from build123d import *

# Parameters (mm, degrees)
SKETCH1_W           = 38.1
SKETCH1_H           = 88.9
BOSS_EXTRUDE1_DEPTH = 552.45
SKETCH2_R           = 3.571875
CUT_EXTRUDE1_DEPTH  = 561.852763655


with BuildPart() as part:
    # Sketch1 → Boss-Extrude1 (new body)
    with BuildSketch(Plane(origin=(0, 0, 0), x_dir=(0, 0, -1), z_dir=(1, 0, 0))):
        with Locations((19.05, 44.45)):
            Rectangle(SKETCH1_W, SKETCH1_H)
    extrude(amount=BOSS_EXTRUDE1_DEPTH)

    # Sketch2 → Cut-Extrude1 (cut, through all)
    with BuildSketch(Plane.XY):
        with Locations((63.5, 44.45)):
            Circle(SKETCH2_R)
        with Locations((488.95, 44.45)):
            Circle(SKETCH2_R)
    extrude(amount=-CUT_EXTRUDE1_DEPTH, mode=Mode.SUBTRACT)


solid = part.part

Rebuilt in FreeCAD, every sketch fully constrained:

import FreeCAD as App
import Part
import Sketcher

V = App.Vector
Q = App.Units.Quantity


def add_polygon(sketch, points):
    """Adds a closed chain of lines whose ends are joined by coincident constraints."""
    first, n = sketch.GeometryCount, len(points)
    for a, b in zip(points, points[1:] + points[:1]):
        sketch.addGeometry(Part.LineSegment(App.Vector(*a, 0), App.Vector(*b, 0)), False)
    for i in range(n):
        sketch.addConstraint(Sketcher.Constraint("Coincident", first + i, 2, first + (i + 1) % n, 1))

doc = App.newDocument("Part")
body = doc.addObject("PartDesign::Body", "Body")

sketch1 = doc.addObject("Sketcher::SketchObject", "Sketch")
body.addObject(sketch1)
sketch1.AttachmentSupport = (doc.YZ_Plane, [""])
sketch1.MapMode = "FlatFace"
add_polygon(sketch1, [(88.9, 0), (0, 0), (0, -38.1), (88.9, -38.1)])
sketch1.addConstraint(Sketcher.Constraint("Horizontal", 0))
sketch1.addConstraint(Sketcher.Constraint("Vertical", 1))
sketch1.addConstraint(Sketcher.Constraint("Horizontal", 2))
sketch1.addConstraint(Sketcher.Constraint("Vertical", 3))
sketch1.addConstraint(Sketcher.Constraint("Coincident", 0, 2, -1, 1))
sketch1.addConstraint(Sketcher.Constraint("DistanceX", 0, 2, 0, 1, Q("3.5 in")))
sketch1.addConstraint(Sketcher.Constraint("DistanceY", 1, 2, 1, 1, Q("1.5 in")))
pad1 = doc.addObject("PartDesign::Pad", "Pad")
body.addObject(pad1)
pad1.Profile = sketch1
pad1.Length = Q("21.75 in")

sketch2 = doc.addObject("Sketcher::SketchObject", "Sketch001")
body.addObject(sketch2)
sketch2.AttachmentSupport = (doc.XY_Plane, [""])
sketch2.MapMode = "FlatFace"
sketch2.addGeometry(Part.Circle(V(63.5, 44.45, 0), V(0, 0, 1), 3.571875), False)
sketch2.addGeometry(Part.Circle(V(488.95, 44.45, 0), V(0, 0, 1), 3.571875), False)
sketch2.addConstraint(Sketcher.Constraint("Equal", 0, 1))
sketch2.addConstraint(Sketcher.Constraint("Horizontal", 0, 3, 1, 3))
sketch2.addConstraint(Sketcher.Constraint("Diameter", 0, Q("0.28125 in")))
sketch2.addConstraint(Sketcher.Constraint("DistanceX", -1, 1, 0, 3, Q("2.5 in")))
sketch2.addConstraint(Sketcher.Constraint("DistanceY", -1, 1, 0, 3, Q("1.75 in")))
sketch2.addConstraint(Sketcher.Constraint("DistanceX", -1, 1, 1, 3, Q("19.25 in")))
pocket1 = doc.addObject("PartDesign::Pocket", "Pocket")
body.addObject(pocket1)
pocket1.Profile = sketch2
pocket1.Type = "ThroughAll"

doc.recompute()
